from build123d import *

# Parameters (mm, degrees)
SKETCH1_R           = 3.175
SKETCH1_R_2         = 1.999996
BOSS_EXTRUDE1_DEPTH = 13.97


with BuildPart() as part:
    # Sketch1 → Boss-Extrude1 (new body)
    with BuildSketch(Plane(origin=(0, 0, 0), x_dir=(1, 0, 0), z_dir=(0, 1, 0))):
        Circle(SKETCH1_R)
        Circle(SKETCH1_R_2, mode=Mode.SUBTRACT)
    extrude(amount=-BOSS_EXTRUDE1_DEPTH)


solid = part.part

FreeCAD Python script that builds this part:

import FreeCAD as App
import Part
import Sketcher

V = App.Vector
Q = App.Units.Quantity

doc = App.newDocument("Part")
body = doc.addObject("PartDesign::Body", "Body")

# Sketch on XZ plane
sketch1 = body.newObject("Sketcher::SketchObject", "Sketch")
sketch1.AttachmentSupport = (doc.getObject("XZ_Plane"), [""])
sketch1.MapMode = "FlatFace"
sketch1.addGeometry(Part.Circle(V(0, 0, 0), V(0, 0, 1), 3.2), False)
sketch1.addGeometry(Part.Circle(V(0, 0, 0), V(0, 0, 1), 2), False)
sketch1.addConstraint(Sketcher.Constraint("Coincident", 0, 3, -1, 1))
sketch1.addConstraint(Sketcher.Constraint("Coincident", 1, 3, -1, 1))
sketch1.addConstraint(Sketcher.Constraint("Diameter", 0, Q("0.25 in")))
sketch1.addConstraint(Sketcher.Constraint("Diameter", 1, Q("3.999992 mm")))
pad1 = body.newObject("PartDesign::Pad", "Pad")
pad1.Profile = sketch1
pad1.Length = Q("0.55 in")

doc.recompute()
